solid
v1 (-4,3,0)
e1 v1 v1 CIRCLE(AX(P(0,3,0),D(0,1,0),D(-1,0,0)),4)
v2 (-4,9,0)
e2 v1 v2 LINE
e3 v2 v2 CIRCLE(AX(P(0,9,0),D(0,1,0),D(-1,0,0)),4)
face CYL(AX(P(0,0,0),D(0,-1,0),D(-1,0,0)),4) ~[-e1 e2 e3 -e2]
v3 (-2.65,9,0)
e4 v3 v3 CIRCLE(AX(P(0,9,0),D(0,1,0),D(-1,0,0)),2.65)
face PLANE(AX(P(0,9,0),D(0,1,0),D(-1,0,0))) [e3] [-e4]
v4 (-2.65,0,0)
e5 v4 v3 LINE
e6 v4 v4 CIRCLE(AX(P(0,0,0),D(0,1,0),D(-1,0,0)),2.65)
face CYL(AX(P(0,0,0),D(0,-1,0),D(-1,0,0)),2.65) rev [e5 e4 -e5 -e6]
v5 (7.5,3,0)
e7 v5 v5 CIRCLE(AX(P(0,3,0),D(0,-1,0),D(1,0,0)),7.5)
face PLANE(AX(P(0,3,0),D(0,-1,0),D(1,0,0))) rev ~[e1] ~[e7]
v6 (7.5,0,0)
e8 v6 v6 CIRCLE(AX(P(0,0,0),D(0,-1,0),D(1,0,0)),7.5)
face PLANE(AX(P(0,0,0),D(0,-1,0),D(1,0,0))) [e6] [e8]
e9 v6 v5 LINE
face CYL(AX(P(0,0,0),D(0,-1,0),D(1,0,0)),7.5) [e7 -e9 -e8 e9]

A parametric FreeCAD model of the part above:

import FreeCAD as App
import Part
import Sketcher

V = App.Vector
Q = App.Units.Quantity

doc = App.newDocument("Part")
body = doc.addObject("PartDesign::Body", "Body")

# Sketch on XZ plane
sketch1 = body.newObject("Sketcher::SketchObject", "Sketch")
sketch1.AttachmentSupport = (doc.getObject("XZ_Plane"), [""])
sketch1.MapMode = "FlatFace"
sketch1.addGeometry([
    Part.Circle(V(0, 0, 0), V(0, 0, 1), 4),
    Part.Circle(V(0, 0, 0), V(0, 0, 1), 2.6),
], False)
sketch1.addConstraint([
    Sketcher.Constraint("Coincident", 0, 3, -1, 1),
    Sketcher.Constraint("Coincident", 1, 3, -1, 1),
    Sketcher.Constraint("Diameter", 0, Q("8 mm")),
    Sketcher.Constraint("Diameter", 1, Q("5.3 mm")),
])
pad1 = body.newObject("PartDesign::Pad", "Pad")
pad1.Profile = sketch1
pad1.Length = 9
pad1.Reversed = True

# Sketch on XZ plane
sketch2 = body.newObject("Sketcher::SketchObject", "Sketch001")
sketch2.AttachmentSupport = (doc.getObject("XZ_Plane"), [""])
sketch2.MapMode = "FlatFace"
sketch2.addGeometry([
    Part.Circle(V(0, 0, 0), V(0, 0, 1), 7.5),
    Part.Circle(V(0, 0, 0), V(0, 0, 1), 4),
], False)
sketch2.addConstraint([
    Sketcher.Constraint("Coincident", 0, 3, -1, 1),
    Sketcher.Constraint("Coincident", 1, 3, -1, 1),
    Sketcher.Constraint("Diameter", 0, Q("15 mm")),
    Sketcher.Constraint("Diameter", 1, Q("8 mm")),
])
pad2 = body.newObject("PartDesign::Pad", "Pad001")
pad2.Profile = sketch2
pad2.Length = 3
pad2.Reversed = True

doc.recompute()
